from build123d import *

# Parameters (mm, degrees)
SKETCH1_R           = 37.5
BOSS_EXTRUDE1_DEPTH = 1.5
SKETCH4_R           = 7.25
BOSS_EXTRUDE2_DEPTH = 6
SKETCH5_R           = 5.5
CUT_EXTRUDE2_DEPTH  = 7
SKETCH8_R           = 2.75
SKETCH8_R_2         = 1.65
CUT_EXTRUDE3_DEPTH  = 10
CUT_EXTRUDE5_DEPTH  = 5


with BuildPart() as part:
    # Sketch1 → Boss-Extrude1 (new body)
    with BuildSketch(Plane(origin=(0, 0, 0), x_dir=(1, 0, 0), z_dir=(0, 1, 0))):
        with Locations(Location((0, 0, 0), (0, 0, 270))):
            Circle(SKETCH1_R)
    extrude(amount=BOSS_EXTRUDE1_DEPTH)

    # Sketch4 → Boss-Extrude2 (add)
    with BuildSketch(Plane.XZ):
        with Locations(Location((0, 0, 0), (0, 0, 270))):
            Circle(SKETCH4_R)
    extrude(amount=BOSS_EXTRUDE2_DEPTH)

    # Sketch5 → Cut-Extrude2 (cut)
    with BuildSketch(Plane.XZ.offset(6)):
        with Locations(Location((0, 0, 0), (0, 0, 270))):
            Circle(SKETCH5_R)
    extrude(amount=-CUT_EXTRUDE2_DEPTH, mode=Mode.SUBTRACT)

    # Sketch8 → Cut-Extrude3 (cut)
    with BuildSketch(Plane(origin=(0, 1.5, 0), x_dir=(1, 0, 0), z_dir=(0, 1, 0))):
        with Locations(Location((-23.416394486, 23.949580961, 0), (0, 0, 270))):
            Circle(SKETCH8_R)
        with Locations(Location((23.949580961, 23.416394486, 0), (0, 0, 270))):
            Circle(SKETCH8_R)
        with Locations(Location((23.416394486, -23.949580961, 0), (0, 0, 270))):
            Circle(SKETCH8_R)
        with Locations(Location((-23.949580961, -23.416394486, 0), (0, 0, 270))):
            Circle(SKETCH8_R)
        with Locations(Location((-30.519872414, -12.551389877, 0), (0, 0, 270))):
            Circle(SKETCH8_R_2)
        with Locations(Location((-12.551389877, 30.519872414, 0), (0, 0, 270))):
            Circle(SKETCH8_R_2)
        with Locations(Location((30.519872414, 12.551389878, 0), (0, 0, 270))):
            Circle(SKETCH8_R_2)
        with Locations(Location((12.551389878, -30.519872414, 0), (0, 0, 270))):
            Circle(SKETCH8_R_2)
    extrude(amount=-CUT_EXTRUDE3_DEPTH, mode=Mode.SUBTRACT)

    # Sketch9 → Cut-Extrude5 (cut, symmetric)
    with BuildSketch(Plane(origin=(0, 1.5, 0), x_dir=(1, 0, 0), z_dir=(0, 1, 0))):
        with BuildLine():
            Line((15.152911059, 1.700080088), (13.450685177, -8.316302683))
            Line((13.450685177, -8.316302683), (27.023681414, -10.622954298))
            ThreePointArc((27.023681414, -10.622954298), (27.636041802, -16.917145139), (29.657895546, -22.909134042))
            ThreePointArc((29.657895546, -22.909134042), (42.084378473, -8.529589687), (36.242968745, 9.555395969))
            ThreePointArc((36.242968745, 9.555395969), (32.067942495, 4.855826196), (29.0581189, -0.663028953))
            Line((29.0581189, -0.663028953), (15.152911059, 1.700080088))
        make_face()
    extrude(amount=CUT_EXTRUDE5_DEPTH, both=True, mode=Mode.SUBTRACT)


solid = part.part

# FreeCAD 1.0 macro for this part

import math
import FreeCAD as App
import Part
import Sketcher
from FreeCAD import Vector
Q = App.Units.Quantity

doc = App.newDocument("Part")
params = doc.addObject("Spreadsheet::Sheet", "Params")
for row, (alias, value) in enumerate([
    ("sketch1_diameter", "75 mm"),
    ("pad1_length", "1.5 mm"),
    ("sketch2_diameter", "14.5 mm"),
    ("pad2_length", "6 mm"),
    ("sketch3_diameter", "11 mm"),
    ("pocket1_length", "7 mm"),
    ("sketch4_diameter", "5.5 mm"),
    ("sketch4_diameter2", "3.3 mm"),
    ("pocket2_length", "10 mm"),
    ("pocket3_length", "10 mm"),
], start=1):
    params.set(f"A{row}", alias)
    params.set(f"B{row}", "=" + value)
    params.setAlias(f"B{row}", alias)

body = doc.addObject("PartDesign::Body", "Body")

# Sketch on XZ plane
sketch1 = body.newObject("Sketcher::SketchObject", "Sketch")
sketch1.AttachmentSupport = (doc.getObject("XZ_Plane"), [""])
sketch1.MapMode = "FlatFace"
sketch1.addGeometry(Part.Circle(Vector(0, 0, 0), Vector(0, 0, 1), 38), False)
sketch1.addConstraint([
    Sketcher.Constraint("Coincident", 0, 3, -1, 1),
    Sketcher.Constraint("Diameter", 0, Q("75 mm")),
])
sketch1.setExpression("Constraints[1]", "Params.sketch1_diameter")
pad1 = body.newObject("PartDesign::Pad", "Pad")
pad1.Profile = sketch1
pad1.setExpression("Length", "Params.pad1_length")
pad1.Reversed = True

# Sketch on XZ plane
sketch2 = body.newObject("Sketcher::SketchObject", "Sketch001")
sketch2.AttachmentSupport = (doc.getObject("XZ_Plane"), [""])
sketch2.MapMode = "FlatFace"
sketch2.addGeometry(Part.Circle(Vector(0, 0, 0), Vector(0, 0, 1), 7), False)
sketch2.addConstraint([
    Sketcher.Constraint("Coincident", 0, 3, -1, 1),
    Sketcher.Constraint("Diameter", 0, Q("14.5 mm")),
])
sketch2.setExpression("Constraints[1]", "Params.sketch2_diameter")
pad2 = body.newObject("PartDesign::Pad", "Pad001")
pad2.Profile = sketch2
pad2.setExpression("Length", "Params.pad2_length")

# Sketch on XZ plane
sketch3 = body.newObject("Sketcher::SketchObject", "Sketch002")
sketch3.AttachmentSupport = (doc.getObject("XZ_Plane"), [""])
sketch3.MapMode = "FlatFace"
sketch3.AttachmentOffset = App.Placement(Vector(0, 0, 6), App.Rotation())
sketch3.addGeometry(Part.Circle(Vector(0, 0, 0), Vector(0, 0, 1), 6), False)
sketch3.addConstraint([
    Sketcher.Constraint("Coincident", 0, 3, -1, 1),
    Sketcher.Constraint("Diameter", 0, Q("11 mm")),
])
sketch3.setExpression("Constraints[1]", "Params.sketch3_diameter")
pocket1 = body.newObject("PartDesign::Pocket", "Pocket")
pocket1.Profile = sketch3
pocket1.setExpression("Length", "Params.pocket1_length")

# Sketch on XZ plane
sketch4 = body.newObject("Sketcher::SketchObject", "Sketch003")
sketch4.AttachmentSupport = (doc.getObject("XZ_Plane"), [""])
sketch4.MapMode = "FlatFace"
sketch4.AttachmentOffset = App.Placement(Vector(0, 0, -1.5), App.Rotation())
sketch4.addGeometry([
    Part.Circle(Vector(-23.4, -23.9, 0), Vector(0, 0, 1), 2.8),  # 0
    Part.Circle(Vector(23.9, -23.4, 0), Vector(0, 0, 1), 2.8),  # 1
    Part.Circle(Vector(23.4, 23.9, 0), Vector(0, 0, 1), 2.8),  # 2
    Part.Circle(Vector(-23.9, 23.4, 0), Vector(0, 0, 1), 2.8),  # 3
    Part.Circle(Vector(-30.5, 12.6, 0), Vector(0, 0, 1), 1.6),  # 4
    Part.Circle(Vector(-12.6, -30.5, 0), Vector(0, 0, 1), 1.6),  # 5
    Part.Circle(Vector(30.5, -12.6, 0), Vector(0, 0, 1), 1.6),  # 6
    Part.Circle(Vector(12.6, 30.5, 0), Vector(0, 0, 1), 1.6),  # 7
], False)
sketch4.addConstraint([
    Sketcher.Constraint("Equal", 0, 1),
    Sketcher.Constraint("Equal", 1, 2),
    Sketcher.Constraint("Equal", 2, 3),
    Sketcher.Constraint("Equal", 4, 5),
    Sketcher.Constraint("Equal", 5, 6),
    Sketcher.Constraint("Equal", 6, 7),
    Sketcher.Constraint("Symmetric", 0, 3, 2, 3, -1, 1),
    Sketcher.Constraint("Symmetric", 1, 3, 3, 3, -1, 1),
    Sketcher.Constraint("Symmetric", 4, 3, 6, 3, -1, 1),
    Sketcher.Constraint("Symmetric", 5, 3, 7, 3, -1, 1),
    Sketcher.Constraint("Diameter", 0, Q("5.5 mm")),
    Sketcher.Constraint("Diameter", 4, Q("3.3 mm")),
    Sketcher.Constraint("DistanceY", 0, 3, -1, 1, Q("23.949581 mm")),
    Sketcher.Constraint("DistanceX", -1, 1, 1, 3, Q("23.949581 mm")),
    Sketcher.Constraint("DistanceY", -1, 1, 4, 3, Q("12.55139 mm")),
    Sketcher.Constraint("DistanceX", 5, 3, -1, 1, Q("12.55139 mm")),
    Sketcher.Constraint("DistanceX", 0, 3, 2, 3, Q("46.832789 mm")),
    Sketcher.Constraint("DistanceY", 1, 3, 3, 3, Q("46.832789 mm")),
    Sketcher.Constraint("DistanceX", 4, 3, 3, 3, Q("6.570291 mm")),
    Sketcher.Constraint("DistanceY", 5, 3, 0, 3, Q("6.570291 mm")),
])
sketch4.setExpression("Constraints[10]", "Params.sketch4_diameter")
sketch4.setExpression("Constraints[11]", "Params.sketch4_diameter2")
pocket2 = body.newObject("PartDesign::Pocket", "Pocket001")
pocket2.Profile = sketch4
pocket2.setExpression("Length", "Params.pocket2_length")
pocket2.Reversed = True

# Sketch on XZ plane
sketch5 = body.newObject("Sketcher::SketchObject", "Sketch004")
sketch5.AttachmentSupport = (doc.getObject("XZ_Plane"), [""])
sketch5.MapMode = "FlatFace"
sketch5.AttachmentOffset = App.Placement(Vector(0, 0, -1.5), App.Rotation())
sketch5.addGeometry([
    Part.LineSegment(Vector(15, -2, 0), Vector(13, 8, 0)),  # 0
    Part.LineSegment(Vector(13, 8, 0), Vector(27, 11, 0)),  # 1
    Part.ArcOfCircle(Part.Circle(Vector(55, 11, 0), Vector(0, 0, 1), 28), math.radians(155), math.radians(181)),  # 2
    Part.ArcOfCircle(Part.Circle(Vector(23, 5, 0), Vector(0, 0, 1), 19), math.radians(-47), math.radians(70)),  # 3
    Part.ArcOfCircle(Part.Circle(Vector(55, 11, 0), Vector(0, 0, 1), 28), math.radians(-158), math.radians(-132)),  # 4
    Part.LineSegment(Vector(29, 1, 0), Vector(15, -2, 0)),  # 5
], False)
sketch5.addConstraint([
    Sketcher.Constraint("Coincident", 0, 2, 1, 1),
    Sketcher.Constraint("Coincident", 1, 2, 2, 2),
    Sketcher.Constraint("Coincident", 2, 1, 3, 2),
    Sketcher.Constraint("Coincident", 3, 1, 4, 2),
    Sketcher.Constraint("Coincident", 4, 1, 5, 1),
    Sketcher.Constraint("Coincident", 5, 2, 0, 1),
    Sketcher.Constraint("Coincident", 4, 3, 2, 3),
    Sketcher.Constraint("Equal", 2, 4),
    Sketcher.Constraint("Perpendicular", 0, 1),
    Sketcher.Constraint("Parallel", 1, 5),
    Sketcher.Constraint("Radius", 2, Q("27.742698 mm")),
    Sketcher.Constraint("Radius", 3, Q("19.377175 mm")),
    Sketcher.Constraint("DistanceY", 3, 1, 0, 2, Q("17.871699 mm")),
    Sketcher.Constraint("DistanceY", -1, 1, 2, 3, Q("11.101158 mm")),
    Sketcher.Constraint("DistanceX", -1, 1, 1, 2, Q("27.023681 mm")),
    Sketcher.Constraint("DistanceX", -1, 1, 3, 1, Q("36.242969 mm")),
    Sketcher.Constraint("DistanceX", -1, 1, 4, 1, Q("29.058119 mm")),
    Sketcher.Constraint("DistanceX", -1, 1, 5, 2, Q("15.152911 mm")),
    Sketcher.Constraint("DistanceY", 5, 2, -1, 1, Q("1.70008 mm")),
    Sketcher.Constraint("DistanceY", 3, 3, 2, 3, Q("6.423572 mm")),
])
pocket3 = body.newObject("PartDesign::Pocket", "Pocket002")
pocket3.Profile = sketch5
pocket3.setExpression("Length", "Params.pocket3_length")
pocket3.Midplane = True

doc.recompute()
